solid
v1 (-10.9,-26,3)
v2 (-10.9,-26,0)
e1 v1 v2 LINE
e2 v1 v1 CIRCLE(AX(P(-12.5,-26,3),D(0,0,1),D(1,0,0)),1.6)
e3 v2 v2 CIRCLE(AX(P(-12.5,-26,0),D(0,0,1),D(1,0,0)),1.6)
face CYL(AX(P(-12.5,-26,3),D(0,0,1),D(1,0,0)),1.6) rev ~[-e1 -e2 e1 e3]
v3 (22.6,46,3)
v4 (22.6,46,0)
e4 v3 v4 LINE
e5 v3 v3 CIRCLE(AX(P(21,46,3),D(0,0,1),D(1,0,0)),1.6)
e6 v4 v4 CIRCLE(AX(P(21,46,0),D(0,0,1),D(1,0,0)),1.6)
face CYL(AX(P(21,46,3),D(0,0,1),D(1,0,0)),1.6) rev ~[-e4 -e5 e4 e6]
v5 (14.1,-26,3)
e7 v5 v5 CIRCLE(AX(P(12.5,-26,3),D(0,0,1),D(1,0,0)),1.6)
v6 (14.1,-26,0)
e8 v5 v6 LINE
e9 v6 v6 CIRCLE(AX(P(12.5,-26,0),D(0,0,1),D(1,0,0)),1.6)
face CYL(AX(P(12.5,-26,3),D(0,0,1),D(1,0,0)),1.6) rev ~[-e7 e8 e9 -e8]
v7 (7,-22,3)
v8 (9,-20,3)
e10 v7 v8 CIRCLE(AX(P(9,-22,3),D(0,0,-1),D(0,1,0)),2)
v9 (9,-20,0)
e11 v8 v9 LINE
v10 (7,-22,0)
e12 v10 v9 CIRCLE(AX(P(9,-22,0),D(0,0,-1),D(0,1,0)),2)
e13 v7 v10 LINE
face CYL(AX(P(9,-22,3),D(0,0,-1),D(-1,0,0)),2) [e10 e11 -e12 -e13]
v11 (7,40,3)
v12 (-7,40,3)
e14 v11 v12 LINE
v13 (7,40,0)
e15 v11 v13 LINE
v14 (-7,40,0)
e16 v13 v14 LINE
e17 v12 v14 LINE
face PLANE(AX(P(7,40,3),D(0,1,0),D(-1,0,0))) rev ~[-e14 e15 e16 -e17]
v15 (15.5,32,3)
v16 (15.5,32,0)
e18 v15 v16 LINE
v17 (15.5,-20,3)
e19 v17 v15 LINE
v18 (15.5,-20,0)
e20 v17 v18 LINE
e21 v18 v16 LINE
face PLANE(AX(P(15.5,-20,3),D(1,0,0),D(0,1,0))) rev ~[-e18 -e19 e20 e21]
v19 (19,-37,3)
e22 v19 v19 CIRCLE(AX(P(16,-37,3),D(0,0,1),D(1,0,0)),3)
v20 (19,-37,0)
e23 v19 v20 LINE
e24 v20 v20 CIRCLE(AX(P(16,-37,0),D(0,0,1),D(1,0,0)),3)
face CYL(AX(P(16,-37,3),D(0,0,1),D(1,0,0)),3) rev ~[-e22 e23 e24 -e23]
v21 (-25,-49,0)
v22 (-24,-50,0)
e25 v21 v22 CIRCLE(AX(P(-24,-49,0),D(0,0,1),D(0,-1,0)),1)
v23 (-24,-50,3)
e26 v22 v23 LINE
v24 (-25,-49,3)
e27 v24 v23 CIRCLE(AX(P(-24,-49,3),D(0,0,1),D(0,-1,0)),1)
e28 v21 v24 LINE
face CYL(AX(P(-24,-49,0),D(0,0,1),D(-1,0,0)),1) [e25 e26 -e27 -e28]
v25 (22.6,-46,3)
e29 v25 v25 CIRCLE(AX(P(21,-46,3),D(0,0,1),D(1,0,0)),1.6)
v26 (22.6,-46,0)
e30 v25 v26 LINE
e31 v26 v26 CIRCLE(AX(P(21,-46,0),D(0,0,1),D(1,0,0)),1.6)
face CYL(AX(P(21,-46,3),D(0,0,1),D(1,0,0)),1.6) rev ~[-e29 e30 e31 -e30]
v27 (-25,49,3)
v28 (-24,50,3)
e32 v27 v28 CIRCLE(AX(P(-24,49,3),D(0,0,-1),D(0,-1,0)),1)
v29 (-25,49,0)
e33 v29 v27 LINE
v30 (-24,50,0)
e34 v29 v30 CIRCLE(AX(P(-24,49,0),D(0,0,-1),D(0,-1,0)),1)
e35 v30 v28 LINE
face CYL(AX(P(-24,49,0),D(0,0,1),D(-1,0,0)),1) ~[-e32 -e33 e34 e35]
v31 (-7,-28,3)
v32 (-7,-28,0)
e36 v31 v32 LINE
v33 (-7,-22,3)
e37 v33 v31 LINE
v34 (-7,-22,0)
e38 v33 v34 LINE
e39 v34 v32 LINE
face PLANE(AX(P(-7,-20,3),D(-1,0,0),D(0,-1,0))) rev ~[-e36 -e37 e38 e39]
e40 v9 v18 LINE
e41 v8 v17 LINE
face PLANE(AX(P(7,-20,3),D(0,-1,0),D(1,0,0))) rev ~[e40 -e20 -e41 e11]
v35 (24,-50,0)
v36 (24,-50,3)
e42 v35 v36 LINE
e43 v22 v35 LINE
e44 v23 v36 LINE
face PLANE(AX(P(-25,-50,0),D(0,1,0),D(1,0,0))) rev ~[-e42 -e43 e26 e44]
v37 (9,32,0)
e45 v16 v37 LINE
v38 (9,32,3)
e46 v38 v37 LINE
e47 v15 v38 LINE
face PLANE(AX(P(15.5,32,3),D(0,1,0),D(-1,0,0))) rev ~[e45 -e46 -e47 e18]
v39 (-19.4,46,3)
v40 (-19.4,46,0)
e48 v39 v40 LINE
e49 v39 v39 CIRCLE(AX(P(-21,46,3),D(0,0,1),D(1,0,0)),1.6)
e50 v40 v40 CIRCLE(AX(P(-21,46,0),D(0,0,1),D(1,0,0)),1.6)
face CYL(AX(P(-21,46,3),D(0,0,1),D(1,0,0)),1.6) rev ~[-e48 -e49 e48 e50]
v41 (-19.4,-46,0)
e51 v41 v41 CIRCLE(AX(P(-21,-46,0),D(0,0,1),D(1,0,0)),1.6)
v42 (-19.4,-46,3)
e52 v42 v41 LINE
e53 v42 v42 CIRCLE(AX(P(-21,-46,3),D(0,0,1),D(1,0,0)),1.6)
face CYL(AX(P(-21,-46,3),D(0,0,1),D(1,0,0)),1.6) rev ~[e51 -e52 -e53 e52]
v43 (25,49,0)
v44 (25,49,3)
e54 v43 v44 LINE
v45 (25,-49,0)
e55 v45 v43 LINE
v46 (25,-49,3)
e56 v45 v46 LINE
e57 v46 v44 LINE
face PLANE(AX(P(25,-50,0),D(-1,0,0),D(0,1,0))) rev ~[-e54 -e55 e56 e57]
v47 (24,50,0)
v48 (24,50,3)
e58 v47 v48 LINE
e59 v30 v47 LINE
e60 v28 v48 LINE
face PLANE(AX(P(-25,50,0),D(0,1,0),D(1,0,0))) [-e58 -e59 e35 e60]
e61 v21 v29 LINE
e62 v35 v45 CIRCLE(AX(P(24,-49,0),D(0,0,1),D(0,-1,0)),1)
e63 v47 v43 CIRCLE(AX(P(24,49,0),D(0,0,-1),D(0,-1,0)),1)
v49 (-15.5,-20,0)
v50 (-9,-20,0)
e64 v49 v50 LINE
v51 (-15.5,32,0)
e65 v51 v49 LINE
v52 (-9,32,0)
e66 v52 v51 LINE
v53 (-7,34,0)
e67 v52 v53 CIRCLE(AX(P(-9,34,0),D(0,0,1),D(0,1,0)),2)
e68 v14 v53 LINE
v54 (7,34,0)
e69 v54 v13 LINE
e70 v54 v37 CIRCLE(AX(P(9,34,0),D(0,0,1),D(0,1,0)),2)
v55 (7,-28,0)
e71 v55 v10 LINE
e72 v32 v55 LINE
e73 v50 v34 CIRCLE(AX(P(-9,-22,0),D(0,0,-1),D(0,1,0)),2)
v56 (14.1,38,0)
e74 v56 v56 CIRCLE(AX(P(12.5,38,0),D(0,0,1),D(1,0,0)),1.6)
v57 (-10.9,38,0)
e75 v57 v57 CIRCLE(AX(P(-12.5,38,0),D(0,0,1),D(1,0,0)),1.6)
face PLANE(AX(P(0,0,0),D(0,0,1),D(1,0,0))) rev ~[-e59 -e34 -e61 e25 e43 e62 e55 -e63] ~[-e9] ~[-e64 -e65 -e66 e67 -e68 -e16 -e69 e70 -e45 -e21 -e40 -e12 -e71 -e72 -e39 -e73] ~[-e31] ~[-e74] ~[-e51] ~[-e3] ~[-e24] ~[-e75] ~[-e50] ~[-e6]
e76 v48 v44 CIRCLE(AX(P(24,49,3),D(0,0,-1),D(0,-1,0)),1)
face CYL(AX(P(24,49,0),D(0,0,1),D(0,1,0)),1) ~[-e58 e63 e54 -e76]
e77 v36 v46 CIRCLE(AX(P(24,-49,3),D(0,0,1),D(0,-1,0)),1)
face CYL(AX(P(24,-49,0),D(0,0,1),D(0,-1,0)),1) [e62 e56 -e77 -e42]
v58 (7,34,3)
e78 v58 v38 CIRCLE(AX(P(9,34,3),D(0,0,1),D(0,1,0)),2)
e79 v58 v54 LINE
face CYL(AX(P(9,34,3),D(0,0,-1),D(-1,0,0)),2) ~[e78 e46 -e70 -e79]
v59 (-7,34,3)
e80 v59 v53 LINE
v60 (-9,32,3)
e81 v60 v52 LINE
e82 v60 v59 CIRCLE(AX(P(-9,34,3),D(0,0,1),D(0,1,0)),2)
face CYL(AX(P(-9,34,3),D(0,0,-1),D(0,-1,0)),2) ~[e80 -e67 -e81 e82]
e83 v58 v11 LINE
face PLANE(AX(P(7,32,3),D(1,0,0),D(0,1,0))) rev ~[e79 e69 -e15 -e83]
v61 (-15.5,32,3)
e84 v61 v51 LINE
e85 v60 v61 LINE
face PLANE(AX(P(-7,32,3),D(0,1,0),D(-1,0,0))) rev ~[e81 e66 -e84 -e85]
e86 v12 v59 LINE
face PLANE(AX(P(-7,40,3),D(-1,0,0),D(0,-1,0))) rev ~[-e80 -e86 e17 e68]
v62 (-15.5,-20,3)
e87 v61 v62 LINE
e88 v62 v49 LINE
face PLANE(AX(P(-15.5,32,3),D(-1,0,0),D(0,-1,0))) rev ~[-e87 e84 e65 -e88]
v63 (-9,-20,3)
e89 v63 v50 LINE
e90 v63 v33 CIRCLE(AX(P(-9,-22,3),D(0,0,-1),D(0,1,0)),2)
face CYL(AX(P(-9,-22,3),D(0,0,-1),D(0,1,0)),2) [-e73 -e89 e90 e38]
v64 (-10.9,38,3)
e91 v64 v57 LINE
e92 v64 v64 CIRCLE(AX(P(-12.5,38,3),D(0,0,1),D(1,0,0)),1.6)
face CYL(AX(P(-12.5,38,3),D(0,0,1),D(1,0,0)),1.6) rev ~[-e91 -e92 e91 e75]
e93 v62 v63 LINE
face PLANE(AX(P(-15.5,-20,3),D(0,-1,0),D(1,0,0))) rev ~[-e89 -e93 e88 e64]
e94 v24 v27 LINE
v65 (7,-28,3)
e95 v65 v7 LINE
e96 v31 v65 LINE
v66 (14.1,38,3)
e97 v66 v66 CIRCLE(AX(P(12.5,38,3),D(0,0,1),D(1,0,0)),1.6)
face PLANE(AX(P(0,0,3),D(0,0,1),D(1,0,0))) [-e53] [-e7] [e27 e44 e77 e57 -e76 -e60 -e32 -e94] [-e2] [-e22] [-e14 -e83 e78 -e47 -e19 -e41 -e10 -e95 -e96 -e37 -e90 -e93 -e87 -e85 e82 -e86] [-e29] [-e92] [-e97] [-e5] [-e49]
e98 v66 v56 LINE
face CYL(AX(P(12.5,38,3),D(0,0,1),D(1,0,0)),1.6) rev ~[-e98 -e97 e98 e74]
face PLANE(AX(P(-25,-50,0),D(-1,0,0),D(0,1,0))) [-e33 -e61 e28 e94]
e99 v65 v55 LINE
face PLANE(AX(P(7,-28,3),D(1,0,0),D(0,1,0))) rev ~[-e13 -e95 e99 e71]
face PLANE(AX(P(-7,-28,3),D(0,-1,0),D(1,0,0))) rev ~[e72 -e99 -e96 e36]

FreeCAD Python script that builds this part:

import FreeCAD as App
import Part
import Sketcher

V = App.Vector
Q = App.Units.Quantity


def edges_at(feature, points):
    """Names of the edges that pass closest to the given points."""
    edges = feature.Shape.Edges
    near = lambda p: min(range(len(edges)), key=lambda i: edges[i].distToShape(Part.Vertex(*p))[0])
    return sorted({f"Edge{near(p) + 1}" for p in points})


def add_polygon(sketch, points):
    """Adds a closed chain of lines whose ends are joined by coincident constraints."""
    first, n = sketch.GeometryCount, len(points)
    for a, b in zip(points, points[1:] + points[:1]):
        sketch.addGeometry(Part.LineSegment(App.Vector(*a, 0), App.Vector(*b, 0)), False)
    for i in range(n):
        sketch.addConstraint(Sketcher.Constraint("Coincident", first + i, 2, first + (i + 1) % n, 1))

doc = App.newDocument("Part")
params = doc.addObject("Spreadsheet::Sheet", "Params")
for row, (alias, value) in enumerate([
    ("sketch1_width", "50 mm"),
    ("sketch1_height", "100 mm"),
    ("pad1_length", "3 mm"),
    ("sketch2_diameter", "3.2 mm"),
    ("pocket1_length", "3 mm"),
    ("sketch3_diameter", "3.2 mm"),
    ("sketch3_width", "14 mm"),
    ("sketch3_height", "52 mm"),
    ("sketch3_height2", "8 mm"),
    ("sketch3_width2", "8.5 mm"),
    ("pocket2_length", "3 mm"),
    ("sketch4_diameter", "6 mm"),
    ("pocket3_length", "3 mm"),
    ("fillet_radius", "1 mm"),
    ("fillet2_radius", "2 mm"),
], start=1):
    params.set(f"A{row}", alias)
    params.set(f"B{row}", "=" + value)
    params.setAlias(f"B{row}", alias)

body = doc.addObject("PartDesign::Body", "Body")

sketch1 = doc.addObject("Sketcher::SketchObject", "Sketch")
body.addObject(sketch1)
sketch1.AttachmentSupport = (doc.XY_Plane, [""])
sketch1.MapMode = "FlatFace"
add_polygon(sketch1, [(-25, 50), (-25, -50), (25, -50), (25, 50)])
sketch1.addConstraint([
    Sketcher.Constraint("Vertical", 0),
    Sketcher.Constraint("Horizontal", 1),
    Sketcher.Constraint("Vertical", 2),
    Sketcher.Constraint("Horizontal", 3),
    Sketcher.Constraint("Symmetric", 0, 2, 2, 2, -1, 1),
    Sketcher.Constraint("DistanceX", 1, 1, 1, 2, Q("50 mm")),
    Sketcher.Constraint("DistanceY", 0, 2, 0, 1, Q("100 mm")),
])
sketch1.setExpression("Constraints[9]", "Params.sketch1_width")
sketch1.setExpression("Constraints[10]", "Params.sketch1_height")
pad1 = doc.addObject("PartDesign::Pad", "Pad")
body.addObject(pad1)
pad1.Profile = sketch1
pad1.setExpression("Length", "Params.pad1_length")

sketch2 = doc.addObject("Sketcher::SketchObject", "Sketch001")
body.addObject(sketch2)
sketch2.AttachmentSupport = (doc.XY_Plane, [""])
sketch2.MapMode = "FlatFace"
sketch2.AttachmentOffset = App.Placement(V(0, 0, 3), App.Rotation())
sketch2.addGeometry([
    Part.Circle(V(-21, 46, 0), V(0, 0, 1), 1.6),
    Part.Circle(V(21, 46, 0), V(0, 0, 1), 1.6),
    Part.Circle(V(-21, -46, 0), V(0, 0, 1), 1.6),
    Part.Circle(V(21, -46, 0), V(0, 0, 1), 1.6),
], False)
sketch2.addConstraint([
    Sketcher.Constraint("Equal", 0, 1),
    Sketcher.Constraint("Equal", 1, 2),
    Sketcher.Constraint("Equal", 2, 3),
    Sketcher.Constraint("Symmetric", 1, 3, 2, 3, -1, 1),
    Sketcher.Constraint("Symmetric", 0, 3, 3, 3, -1, 1),
    Sketcher.Constraint("Symmetric", 0, 3, 1, 3, -2),
    Sketcher.Constraint("Diameter", 0, Q("3.2 mm")),
    Sketcher.Constraint("DistanceX", 0, 3, -1, 1, Q("21 mm")),
    Sketcher.Constraint("DistanceY", -1, 1, 0, 3, Q("46 mm")),
])
sketch2.setExpression("Constraints[6]", "Params.sketch2_diameter")
pocket1 = doc.addObject("PartDesign::Pocket", "Pocket")
body.addObject(pocket1)
pocket1.Profile = sketch2
pocket1.setExpression("Length", "Params.pocket1_length")

sketch3 = doc.addObject("Sketcher::SketchObject", "Sketch002")
body.addObject(sketch3)
sketch3.AttachmentSupport = (doc.XY_Plane, [""])
sketch3.MapMode = "FlatFace"
sketch3.AttachmentOffset = App.Placement(V(0, 0, 3), App.Rotation())
sketch3.addGeometry(Part.Circle(V(-12.5, 38, 0), V(0, 0, 1), 1.6), False)
sketch3.addGeometry(Part.Circle(V(12.5, 38, 0), V(0, 0, 1), 1.6), False)
sketch3.addGeometry(Part.Circle(V(-12.5, -26, 0), V(0, 0, 1), 1.6), False)
sketch3.addGeometry(Part.Circle(V(12.5, -26, 0), V(0, 0, 1), 1.6), False)
add_polygon(sketch3, [(-15.5, 32), (-15.5, -20), (-7, -20), (-7, -28), (7, -28), (7, -20), (15.5, -20), (15.5, 32), (7, 32), (7, 40), (-7, 40), (-7, 32)])
sketch3.addConstraint([
    Sketcher.Constraint("Vertical", 4),
    Sketcher.Constraint("Horizontal", 5),
    Sketcher.Constraint("Vertical", 6),
    Sketcher.Constraint("Horizontal", 7),
    Sketcher.Constraint("Vertical", 8),
    Sketcher.Constraint("Horizontal", 9),
    Sketcher.Constraint("Vertical", 10),
    Sketcher.Constraint("Horizontal", 11),
    Sketcher.Constraint("Vertical", 12),
    Sketcher.Constraint("Horizontal", 13),
    Sketcher.Constraint("Vertical", 14),
    Sketcher.Constraint("Horizontal", 15),
    Sketcher.Constraint("Equal", 0, 1),
    Sketcher.Constraint("Equal", 1, 2),
    Sketcher.Constraint("Equal", 2, 3),
    Sketcher.Constraint("Symmetric", 0, 3, 1, 3, -2),
    Sketcher.Constraint("Symmetric", 2, 3, 3, 3, -2),
    Sketcher.Constraint("Symmetric", 5, 2, 8, 2, -2),
    Sketcher.Constraint("Symmetric", 11, 2, 14, 2, -2),
    Sketcher.Constraint("Vertical", 0, 3, 2, 3),
    Sketcher.Constraint("Vertical", 8, 2, 11, 2),
    Sketcher.Constraint("Equal", 5, 9),
    Sketcher.Constraint("Equal", 8, 12),
    Sketcher.Constraint("Diameter", 0, Q("3.2 mm")),
    Sketcher.Constraint("DistanceX", 7, 1, 7, 2, Q("14 mm")),
    Sketcher.Constraint("DistanceY", 4, 2, 4, 1, Q("52 mm")),
    Sketcher.Constraint("DistanceY", 6, 2, 6, 1, Q("8 mm")),
    Sketcher.Constraint("DistanceX", 5, 1, 5, 2, Q("8.5 mm")),
    Sketcher.Constraint("DistanceY", -1, 1, 0, 3, Q("38 mm")),
    Sketcher.Constraint("DistanceY", 2, 3, -1, 1, Q("26 mm")),
    Sketcher.Constraint("DistanceY", 4, 2, -1, 1, Q("20 mm")),
    Sketcher.Constraint("DistanceX", 0, 3, 1, 3, Q("25 mm")),
])
sketch3.setExpression("Constraints[35]", "Params.sketch3_diameter")
sketch3.setExpression("Constraints[36]", "Params.sketch3_width")
sketch3.setExpression("Constraints[37]", "Params.sketch3_height")
sketch3.setExpression("Constraints[38]", "Params.sketch3_height2")
sketch3.setExpression("Constraints[39]", "Params.sketch3_width2")
pocket2 = doc.addObject("PartDesign::Pocket", "Pocket001")
body.addObject(pocket2)
pocket2.Profile = sketch3
pocket2.setExpression("Length", "Params.pocket2_length")

sketch4 = doc.addObject("Sketcher::SketchObject", "Sketch003")
body.addObject(sketch4)
sketch4.AttachmentSupport = (doc.XY_Plane, [""])
sketch4.MapMode = "FlatFace"
sketch4.AttachmentOffset = App.Placement(V(0, 0, 3), App.Rotation())
sketch4.addGeometry(Part.Circle(V(16, -37, 0), V(0, 0, 1), 3), False)
sketch4.addConstraint([
    Sketcher.Constraint("Diameter", 0, Q("6 mm")),
    Sketcher.Constraint("DistanceX", -1, 1, 0, 3, Q("16 mm")),
    Sketcher.Constraint("DistanceY", 0, 3, -1, 1, Q("37 mm")),
])
sketch4.setExpression("Constraints[0]", "Params.sketch4_diameter")
pocket3 = doc.addObject("PartDesign::Pocket", "Pocket002")
body.addObject(pocket3)
pocket3.Profile = sketch4
pocket3.setExpression("Length", "Params.pocket3_length")
doc.recompute()

fillet = doc.addObject("PartDesign::Fillet", "Fillet")
body.addObject(fillet)
fillet.Base = (pocket3, edges_at(pocket3, [
    (25, -50, 1.5),
    (-25, -50, 1.5),
    (25, 50, 1.5),
    (-25, 50, 1.5),
]))
fillet.setExpression("Radius", "Params.fillet_radius")
doc.recompute()

fillet2 = doc.addObject("PartDesign::Fillet", "Fillet001")
body.addObject(fillet2)
fillet2.Base = (fillet, edges_at(fillet, [
    (-7, 32, 1.5),
    (7, 32, 1.5),
    (-7, -20, 1.5),
    (7, -20, 1.5),
]))
fillet2.setExpression("Radius", "Params.fillet2_radius")

doc.recompute()
